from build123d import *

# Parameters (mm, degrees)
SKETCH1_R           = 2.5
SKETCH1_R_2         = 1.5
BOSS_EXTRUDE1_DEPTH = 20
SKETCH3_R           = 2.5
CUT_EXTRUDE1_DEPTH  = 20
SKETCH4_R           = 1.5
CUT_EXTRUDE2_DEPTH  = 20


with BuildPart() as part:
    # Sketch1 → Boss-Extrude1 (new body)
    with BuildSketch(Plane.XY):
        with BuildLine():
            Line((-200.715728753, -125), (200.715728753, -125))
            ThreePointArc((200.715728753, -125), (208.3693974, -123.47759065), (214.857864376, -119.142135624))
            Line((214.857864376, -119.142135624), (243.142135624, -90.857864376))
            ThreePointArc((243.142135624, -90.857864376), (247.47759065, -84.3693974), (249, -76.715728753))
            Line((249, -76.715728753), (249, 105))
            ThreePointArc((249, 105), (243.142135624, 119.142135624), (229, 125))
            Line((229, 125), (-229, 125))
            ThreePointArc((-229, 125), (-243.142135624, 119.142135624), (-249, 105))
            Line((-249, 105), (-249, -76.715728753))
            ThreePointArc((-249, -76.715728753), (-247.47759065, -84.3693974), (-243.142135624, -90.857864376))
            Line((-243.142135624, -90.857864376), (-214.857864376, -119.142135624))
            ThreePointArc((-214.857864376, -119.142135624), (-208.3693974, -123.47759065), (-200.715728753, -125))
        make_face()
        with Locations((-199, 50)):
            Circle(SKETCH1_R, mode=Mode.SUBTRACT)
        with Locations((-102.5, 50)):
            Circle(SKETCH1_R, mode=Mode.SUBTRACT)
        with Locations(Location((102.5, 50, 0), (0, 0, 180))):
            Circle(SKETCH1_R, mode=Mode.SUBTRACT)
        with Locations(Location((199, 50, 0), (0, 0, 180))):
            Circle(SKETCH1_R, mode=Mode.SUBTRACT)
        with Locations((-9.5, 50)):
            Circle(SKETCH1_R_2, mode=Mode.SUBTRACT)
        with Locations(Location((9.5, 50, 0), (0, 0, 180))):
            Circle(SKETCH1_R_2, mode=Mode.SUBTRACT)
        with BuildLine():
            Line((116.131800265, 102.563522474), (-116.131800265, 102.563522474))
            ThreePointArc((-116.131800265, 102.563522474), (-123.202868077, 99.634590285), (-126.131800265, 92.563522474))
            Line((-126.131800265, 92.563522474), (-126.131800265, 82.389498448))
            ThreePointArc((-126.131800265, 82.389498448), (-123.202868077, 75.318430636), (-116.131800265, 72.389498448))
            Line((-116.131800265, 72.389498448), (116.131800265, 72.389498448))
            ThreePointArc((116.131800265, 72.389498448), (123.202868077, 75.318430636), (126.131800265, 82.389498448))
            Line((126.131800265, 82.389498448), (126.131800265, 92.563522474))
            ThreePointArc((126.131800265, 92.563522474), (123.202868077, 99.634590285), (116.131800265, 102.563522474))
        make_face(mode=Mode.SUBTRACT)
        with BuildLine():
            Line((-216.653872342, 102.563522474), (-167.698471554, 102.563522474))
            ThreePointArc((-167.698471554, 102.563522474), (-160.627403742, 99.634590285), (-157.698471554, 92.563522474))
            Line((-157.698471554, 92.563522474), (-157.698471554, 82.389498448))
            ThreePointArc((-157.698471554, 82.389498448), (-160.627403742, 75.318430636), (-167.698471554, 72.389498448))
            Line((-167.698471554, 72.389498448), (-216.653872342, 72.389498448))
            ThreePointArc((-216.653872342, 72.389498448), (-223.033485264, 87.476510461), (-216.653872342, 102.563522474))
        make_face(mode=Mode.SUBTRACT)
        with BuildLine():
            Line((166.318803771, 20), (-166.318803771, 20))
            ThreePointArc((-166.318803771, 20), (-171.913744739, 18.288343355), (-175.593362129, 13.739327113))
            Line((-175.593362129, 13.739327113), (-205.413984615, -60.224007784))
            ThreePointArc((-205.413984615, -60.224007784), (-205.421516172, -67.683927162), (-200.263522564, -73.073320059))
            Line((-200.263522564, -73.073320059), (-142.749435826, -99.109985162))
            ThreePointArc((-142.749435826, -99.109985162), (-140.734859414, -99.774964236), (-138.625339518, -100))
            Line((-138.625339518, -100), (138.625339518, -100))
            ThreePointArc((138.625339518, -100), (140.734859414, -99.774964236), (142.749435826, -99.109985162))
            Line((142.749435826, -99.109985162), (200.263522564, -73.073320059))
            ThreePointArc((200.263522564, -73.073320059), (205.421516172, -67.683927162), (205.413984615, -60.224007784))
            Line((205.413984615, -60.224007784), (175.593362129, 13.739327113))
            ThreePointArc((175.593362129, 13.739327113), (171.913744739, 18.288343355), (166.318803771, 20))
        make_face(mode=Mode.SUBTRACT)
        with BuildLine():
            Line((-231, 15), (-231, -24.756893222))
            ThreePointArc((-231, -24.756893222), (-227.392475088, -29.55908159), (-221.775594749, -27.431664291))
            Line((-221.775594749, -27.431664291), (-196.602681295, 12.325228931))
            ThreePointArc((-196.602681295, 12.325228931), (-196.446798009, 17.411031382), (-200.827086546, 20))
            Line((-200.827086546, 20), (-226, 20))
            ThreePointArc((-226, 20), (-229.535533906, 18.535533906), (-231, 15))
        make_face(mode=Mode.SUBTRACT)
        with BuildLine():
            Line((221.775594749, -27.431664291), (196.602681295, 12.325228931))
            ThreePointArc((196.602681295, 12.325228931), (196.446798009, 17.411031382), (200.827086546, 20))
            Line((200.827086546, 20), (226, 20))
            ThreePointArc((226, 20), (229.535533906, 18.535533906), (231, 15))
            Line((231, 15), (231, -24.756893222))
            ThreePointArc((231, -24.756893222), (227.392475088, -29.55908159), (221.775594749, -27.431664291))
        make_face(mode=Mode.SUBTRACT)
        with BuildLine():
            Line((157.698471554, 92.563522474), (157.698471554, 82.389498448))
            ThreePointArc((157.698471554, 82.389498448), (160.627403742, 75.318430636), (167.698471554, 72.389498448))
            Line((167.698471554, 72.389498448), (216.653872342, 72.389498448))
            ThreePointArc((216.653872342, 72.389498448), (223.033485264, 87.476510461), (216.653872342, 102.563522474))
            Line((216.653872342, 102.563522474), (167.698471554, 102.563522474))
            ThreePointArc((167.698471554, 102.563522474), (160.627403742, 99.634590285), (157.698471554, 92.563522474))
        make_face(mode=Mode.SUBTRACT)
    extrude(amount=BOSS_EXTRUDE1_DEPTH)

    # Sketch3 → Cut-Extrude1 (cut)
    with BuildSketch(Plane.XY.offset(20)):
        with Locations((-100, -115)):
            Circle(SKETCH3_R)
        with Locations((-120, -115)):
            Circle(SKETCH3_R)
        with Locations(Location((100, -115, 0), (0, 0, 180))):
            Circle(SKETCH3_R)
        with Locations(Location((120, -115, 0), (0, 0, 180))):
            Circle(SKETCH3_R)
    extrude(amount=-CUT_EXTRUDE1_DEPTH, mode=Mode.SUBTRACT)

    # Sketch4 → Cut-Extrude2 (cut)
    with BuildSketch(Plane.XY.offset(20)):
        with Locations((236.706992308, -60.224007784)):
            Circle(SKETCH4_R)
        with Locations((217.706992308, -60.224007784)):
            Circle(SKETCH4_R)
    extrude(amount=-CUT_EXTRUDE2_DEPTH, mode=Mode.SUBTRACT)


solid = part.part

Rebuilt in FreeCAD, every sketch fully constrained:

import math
import FreeCAD as App
import Part
import Sketcher

doc = App.newDocument("Part")
body = doc.addObject("PartDesign::Body", "Body")

sketch1 = body.newObject("Sketcher::SketchObject", "Sketch")
sketch1.AttachmentSupport = (doc.getObject("XY_Plane"), [""])
sketch1.MapMode = "FlatFace"
sketch1.addGeometry([
    Part.LineSegment(App.Vector(-200.7, -125, 0), App.Vector(200.7, -125, 0)),
    Part.ArcOfCircle(Part.Circle(App.Vector(200.7, -105, 0), App.Vector(0, 0, 1), 20), math.radians(-90), math.radians(-45)),
    Part.LineSegment(App.Vector(214.9, -119.1, 0), App.Vector(243.1, -90.9, 0)),
    Part.ArcOfCircle(Part.Circle(App.Vector(229, -76.7, 0), App.Vector(0, 0, 1), 20), math.radians(-45), math.radians(0)),
    Part.LineSegment(App.Vector(249, -76.7, 0), App.Vector(249, 105, 0)),
    Part.ArcOfCircle(Part.Circle(App.Vector(229, 105, 0), App.Vector(0, 0, 1), 20), math.radians(0), math.radians(90)),
    Part.LineSegment(App.Vector(229, 125, 0), App.Vector(-229, 125, 0)),
    Part.ArcOfCircle(Part.Circle(App.Vector(-229, 105, 0), App.Vector(0, 0, 1), 20), math.radians(90), math.radians(180)),
    Part.LineSegment(App.Vector(-249, 105, 0), App.Vector(-249, -76.7, 0)),
    Part.ArcOfCircle(Part.Circle(App.Vector(-229, -76.7, 0), App.Vector(0, 0, 1), 20), math.radians(-180), math.radians(-135)),
    Part.LineSegment(App.Vector(-243.1, -90.9, 0), App.Vector(-214.9, -119.1, 0)),
    Part.ArcOfCircle(Part.Circle(App.Vector(-200.7, -105, 0), App.Vector(0, 0, 1), 20), math.radians(-135), math.radians(-90)),
    Part.LineSegment(App.Vector(-231, -24.8, 0), App.Vector(-231, 15, 0)),
    Part.ArcOfCircle(Part.Circle(App.Vector(-226, 15, 0), App.Vector(0, 0, 1), 5), math.radians(90), math.radians(180)),
    Part.LineSegment(App.Vector(-226, 20, 0), App.Vector(-200.8, 20, 0)),
    Part.ArcOfCircle(Part.Circle(App.Vector(-200.8, 15, 0), App.Vector(0, 0, 1), 5), math.radians(-32), math.radians(90)),
    Part.LineSegment(App.Vector(-196.6, 12.3, 0), App.Vector(-221.8, -27.4, 0)),
    Part.ArcOfCircle(Part.Circle(App.Vector(-226, -24.8, 0), App.Vector(0, 0, 1), 5), math.radians(-180), math.radians(-32)),
    Part.LineSegment(App.Vector(-166.3, 20, 0), App.Vector(166.3, 20, 0)),
    Part.ArcOfCircle(Part.Circle(App.Vector(166.3, 10, 0), App.Vector(0, 0, 1), 10), math.radians(22), math.radians(90)),
    Part.LineSegment(App.Vector(175.6, 13.7, 0), App.Vector(205.4, -60.2, 0)),
    Part.ArcOfCircle(Part.Circle(App.Vector(196.1, -64, 0), App.Vector(0, 0, 1), 10), math.radians(-66), math.radians(22)),
    Part.LineSegment(App.Vector(200.3, -73.1, 0), App.Vector(142.7, -99.1, 0)),
    Part.ArcOfCircle(Part.Circle(App.Vector(138.6, -90, 0), App.Vector(0, 0, 1), 10), math.radians(-90), math.radians(-66)),
    Part.LineSegment(App.Vector(138.6, -100, 0), App.Vector(-138.6, -100, 0)),
    Part.ArcOfCircle(Part.Circle(App.Vector(-138.6, -90, 0), App.Vector(0, 0, 1), 10), math.radians(-114), math.radians(-90)),
    Part.LineSegment(App.Vector(-142.7, -99.1, 0), App.Vector(-200.3, -73.1, 0)),
    Part.ArcOfCircle(Part.Circle(App.Vector(-196.1, -64, 0), App.Vector(0, 0, 1), 10), math.radians(158), math.radians(246)),
    Part.LineSegment(App.Vector(-205.4, -60.2, 0), App.Vector(-175.6, 13.7, 0)),
    Part.ArcOfCircle(Part.Circle(App.Vector(-166.3, 10, 0), App.Vector(0, 0, 1), 10), math.radians(90), math.radians(158)),
    Part.ArcOfCircle(Part.Circle(App.Vector(226, -24.8, 0), App.Vector(0, 0, 1), 5), math.radians(-148), math.radians(0)),
    Part.LineSegment(App.Vector(221.8, -27.4, 0), App.Vector(196.6, 12.3, 0)),
    Part.ArcOfCircle(Part.Circle(App.Vector(200.8, 15, 0), App.Vector(0, 0, 1), 5), math.radians(90), math.radians(212)),
    Part.LineSegment(App.Vector(200.8, 20, 0), App.Vector(226, 20, 0)),
    Part.ArcOfCircle(Part.Circle(App.Vector(226, 15, 0), App.Vector(0, 0, 1), 5), math.radians(0), math.radians(90)),
    Part.LineSegment(App.Vector(231, 15, 0), App.Vector(231, -24.8, 0)),
    Part.Circle(App.Vector(-199, 50, 0), App.Vector(0, 0, 1), 2.5),
    Part.Circle(App.Vector(-102.5, 50, 0), App.Vector(0, 0, 1), 2.5),
    Part.Circle(App.Vector(-9.5, 50, 0), App.Vector(0, 0, 1), 1.5),
    Part.ArcOfCircle(Part.Circle(App.Vector(-202, 87.5, 0), App.Vector(0, 0, 1), 21), math.radians(134), math.radians(226)),
    Part.LineSegment(App.Vector(-216.7, 102.6, 0), App.Vector(-167.7, 102.6, 0)),
    Part.ArcOfCircle(Part.Circle(App.Vector(-167.7, 92.6, 0), App.Vector(0, 0, 1), 10), math.radians(0), math.radians(90)),
    Part.LineSegment(App.Vector(-157.7, 92.6, 0), App.Vector(-157.7, 82.4, 0)),
    Part.ArcOfCircle(Part.Circle(App.Vector(-167.7, 82.4, 0), App.Vector(0, 0, 1), 10), math.radians(-90), math.radians(0)),
    Part.LineSegment(App.Vector(-167.7, 72.4, 0), App.Vector(-216.7, 72.4, 0)),
    Part.Circle(App.Vector(9.5, 50, 0), App.Vector(0, 0, 1), 1.5),
    Part.Circle(App.Vector(102.5, 50, 0), App.Vector(0, 0, 1), 2.5),
    Part.Circle(App.Vector(199, 50, 0), App.Vector(0, 0, 1), 2.5),
    Part.LineSegment(App.Vector(-116.1, 102.6, 0), App.Vector(116.1, 102.6, 0)),
    Part.ArcOfCircle(Part.Circle(App.Vector(116.1, 92.6, 0), App.Vector(0, 0, 1), 10), math.radians(0), math.radians(90)),
    Part.LineSegment(App.Vector(126.1, 92.6, 0), App.Vector(126.1, 82.4, 0)),
    Part.ArcOfCircle(Part.Circle(App.Vector(116.1, 82.4, 0), App.Vector(0, 0, 1), 10), math.radians(-90), math.radians(0)),
    Part.LineSegment(App.Vector(116.1, 72.4, 0), App.Vector(-116.1, 72.4, 0)),
    Part.ArcOfCircle(Part.Circle(App.Vector(-116.1, 82.4, 0), App.Vector(0, 0, 1), 10), math.radians(180), math.radians(270)),
    Part.LineSegment(App.Vector(-126.1, 82.4, 0), App.Vector(-126.1, 92.6, 0)),
    Part.ArcOfCircle(Part.Circle(App.Vector(-116.1, 92.6, 0), App.Vector(0, 0, 1), 10), math.radians(90), math.radians(180)),
    Part.LineSegment(App.Vector(157.7, 82.4, 0), App.Vector(157.7, 92.6, 0)),
    Part.ArcOfCircle(Part.Circle(App.Vector(167.7, 92.6, 0), App.Vector(0, 0, 1), 10), math.radians(90), math.radians(180)),
    Part.LineSegment(App.Vector(167.7, 102.6, 0), App.Vector(216.7, 102.6, 0)),
    Part.ArcOfCircle(Part.Circle(App.Vector(202, 87.5, 0), App.Vector(0, 0, 1), 21), math.radians(-46), math.radians(46)),
    Part.LineSegment(App.Vector(216.7, 72.4, 0), App.Vector(167.7, 72.4, 0)),
    Part.ArcOfCircle(Part.Circle(App.Vector(167.7, 82.4, 0), App.Vector(0, 0, 1), 10), math.radians(180), math.radians(270)),
], False)
sketch1.addConstraint([
    Sketcher.Constraint("Tangent", 0, 2, 1, 1),
    Sketcher.Constraint("Tangent", 1, 2, 2, 1),
    Sketcher.Constraint("Tangent", 2, 2, 3, 1),
    Sketcher.Constraint("Tangent", 3, 2, 4, 1),
    Sketcher.Constraint("Tangent", 4, 2, 5, 1),
    Sketcher.Constraint("Tangent", 5, 2, 6, 1),
    Sketcher.Constraint("Tangent", 6, 2, 7, 1),
    Sketcher.Constraint("Tangent", 7, 2, 8, 1),
    Sketcher.Constraint("Tangent", 8, 2, 9, 1),
    Sketcher.Constraint("Tangent", 9, 2, 10, 1),
    Sketcher.Constraint("Tangent", 10, 2, 11, 1),
    Sketcher.Constraint("Tangent", 11, 2, 0, 1),
    Sketcher.Constraint("Tangent", 12, 2, 13, 2),
    Sketcher.Constraint("Tangent", 13, 1, 14, 1),
    Sketcher.Constraint("Tangent", 14, 2, 15, 2),
    Sketcher.Constraint("Tangent", 15, 1, 16, 1),
    Sketcher.Constraint("Tangent", 16, 2, 17, 2),
    Sketcher.Constraint("Tangent", 17, 1, 12, 1),
    Sketcher.Constraint("Tangent", 18, 2, 19, 2),
    Sketcher.Constraint("Tangent", 19, 1, 20, 1),
    Sketcher.Constraint("Tangent", 20, 2, 21, 2),
    Sketcher.Constraint("Tangent", 21, 1, 22, 1),
    Sketcher.Constraint("Tangent", 22, 2, 23, 2),
    Sketcher.Constraint("Tangent", 23, 1, 24, 1),
    Sketcher.Constraint("Tangent", 24, 2, 25, 2),
    Sketcher.Constraint("Tangent", 25, 1, 26, 1),
    Sketcher.Constraint("Tangent", 26, 2, 27, 2),
    Sketcher.Constraint("Tangent", 27, 1, 28, 1),
    Sketcher.Constraint("Tangent", 28, 2, 29, 2),
    Sketcher.Constraint("Tangent", 29, 1, 18, 1),
    Sketcher.Constraint("Tangent", 30, 1, 31, 1),
    Sketcher.Constraint("Tangent", 31, 2, 32, 2),
    Sketcher.Constraint("Tangent", 32, 1, 33, 1),
    Sketcher.Constraint("Tangent", 33, 2, 34, 2),
    Sketcher.Constraint("Tangent", 34, 1, 35, 1),
    Sketcher.Constraint("Tangent", 35, 2, 30, 2),
    Sketcher.Constraint("Coincident", 39, 1, 40, 1),
    Sketcher.Constraint("Tangent", 40, 2, 41, 2),
    Sketcher.Constraint("Tangent", 41, 1, 42, 1),
    Sketcher.Constraint("Tangent", 42, 2, 43, 2),
    Sketcher.Constraint("Tangent", 43, 1, 44, 1),
    Sketcher.Constraint("Coincident", 44, 2, 39, 2),
    Sketcher.Constraint("Tangent", 48, 2, 49, 2),
    Sketcher.Constraint("Tangent", 49, 1, 50, 1),
    Sketcher.Constraint("Tangent", 50, 2, 51, 2),
    Sketcher.Constraint("Tangent", 51, 1, 52, 1),
    Sketcher.Constraint("Tangent", 52, 2, 53, 2),
    Sketcher.Constraint("Tangent", 53, 1, 54, 1),
    Sketcher.Constraint("Tangent", 54, 2, 55, 2),
    Sketcher.Constraint("Tangent", 55, 1, 48, 1),
    Sketcher.Constraint("Tangent", 56, 2, 57, 2),
    Sketcher.Constraint("Tangent", 57, 1, 58, 1),
    Sketcher.Constraint("Coincident", 58, 2, 59, 2),
    Sketcher.Constraint("Coincident", 59, 1, 60, 1),
    Sketcher.Constraint("Tangent", 60, 2, 61, 2),
    Sketcher.Constraint("Tangent", 61, 1, 56, 1),
    Sketcher.Constraint("Horizontal", 0),
    Sketcher.Constraint("Vertical", 4),
    Sketcher.Constraint("Horizontal", 6),
    Sketcher.Constraint("Vertical", 8),
    Sketcher.Constraint("Vertical", 12),
    Sketcher.Constraint("Horizontal", 14),
    Sketcher.Constraint("Horizontal", 18),
    Sketcher.Constraint("Horizontal", 24),
    Sketcher.Constraint("Horizontal", 33),
    Sketcher.Constraint("Vertical", 35),
    Sketcher.Constraint("Horizontal", 40),
    Sketcher.Constraint("Vertical", 42),
    Sketcher.Constraint("Horizontal", 44),
    Sketcher.Constraint("Horizontal", 48),
    Sketcher.Constraint("Vertical", 50),
    Sketcher.Constraint("Horizontal", 52),
    Sketcher.Constraint("Vertical", 54),
    Sketcher.Constraint("Vertical", 56),
    Sketcher.Constraint("Horizontal", 58),
    Sketcher.Constraint("Horizontal", 60),
    Sketcher.Constraint("Equal", 1, 3),
    Sketcher.Constraint("Equal", 3, 5),
    Sketcher.Constraint("Equal", 5, 7),
    Sketcher.Constraint("Equal", 7, 9),
    Sketcher.Constraint("Equal", 9, 11),
    Sketcher.Constraint("Equal", 13, 15),
    Sketcher.Constraint("Equal", 15, 17),
    Sketcher.Constraint("Equal", 19, 21),
    Sketcher.Constraint("Equal", 21, 23),
    Sketcher.Constraint("Equal", 23, 25),
    Sketcher.Constraint("Equal", 25, 27),
    Sketcher.Constraint("Equal", 27, 29),
    Sketcher.Constraint("Equal", 17, 30),
    Sketcher.Constraint("Equal", 30, 32),
    Sketcher.Constraint("Equal", 32, 34),
    Sketcher.Constraint("Equal", 36, 37),
    Sketcher.Constraint("Equal", 29, 41),
    Sketcher.Constraint("Equal", 41, 43),
    Sketcher.Constraint("Equal", 38, 45),
    Sketcher.Constraint("Equal", 37, 46),
    Sketcher.Constraint("Equal", 46, 47),
    Sketcher.Constraint("Equal", 43, 49),
    Sketcher.Constraint("Equal", 49, 51),
    Sketcher.Constraint("Equal", 51, 53),
    Sketcher.Constraint("Equal", 53, 55),
    Sketcher.Constraint("Equal", 55, 57),
    Sketcher.Constraint("Equal", 39, 59),
    Sketcher.Constraint("Equal", 57, 61),
    Sketcher.Constraint("Symmetric", 3, 3, 9, 3, -2),
    Sketcher.Constraint("Symmetric", 21, 3, 27, 3, -2),
    Sketcher.Constraint("Symmetric", 17, 3, 30, 3, -2),
    Sketcher.Constraint("Symmetric", 15, 3, 32, 3, -2),
    Sketcher.Constraint("Symmetric", 38, 3, 45, 3, -2),
    Sketcher.Constraint("Symmetric", 37, 3, 46, 3, -2),
    Sketcher.Constraint("Symmetric", 36, 3, 47, 3, -2),
    Sketcher.Constraint("Symmetric", 41, 3, 57, 3, -2),
    Sketcher.Constraint("Symmetric", 39, 3, 59, 3, -2),
    Sketcher.Constraint("Perpendicular", 2, 10),
    Sketcher.Constraint("Horizontal", 36, 3, 37, 3),
    Sketcher.Constraint("Horizontal", 37, 3, 38, 3),
    Sketcher.Constraint("Horizontal", 41, 3, 49, 3),
    Sketcher.Constraint("Horizontal", 43, 3, 51, 3),
    Sketcher.Constraint("Horizontal", 53, 3, 61, 3),
    Sketcher.Constraint("Horizontal", 2, 2, 9, 2),
    Sketcher.Constraint("Horizontal", 14, 2, 18, 2),
    Sketcher.Constraint("Horizontal", 22, 2, 25, 1),
    Sketcher.Constraint("Horizontal", 20, 2, 27, 1),
    Sketcher.Constraint("Vertical", 39, 1, 44, 2),
    Sketcher.Constraint("Diameter", 36, 5.0),
    Sketcher.Constraint("Diameter", 38, 3.0),
    Sketcher.Constraint("Radius", 1, 20.0),
    Sketcher.Constraint("Radius", 13, 5.0),
    Sketcher.Constraint("Radius", 19, 10.0),
    Sketcher.Constraint("DistanceX", 6, 2, 6, 1, 458.0),
    Sketcher.Constraint("Distance", 2, 40.0),
    Sketcher.Constraint("DistanceY", 1, 3, -1, 1, 105.0),
    Sketcher.Constraint("DistanceY", -1, 1, 5, 3, 105.0),
    Sketcher.Constraint("DistanceX", 13, 3, -1, 1, 226.0),
    Sketcher.Constraint("DistanceY", -1, 1, 13, 3, 15.0),
    Sketcher.Constraint("DistanceY", 23, 3, -1, 1, 90.0),
    Sketcher.Constraint("DistanceX", 36, 3, -1, 1, 199.0),
    Sketcher.Constraint("DistanceY", -1, 1, 36, 3, 50.0),
    Sketcher.Constraint("DistanceX", 37, 3, -1, 1, 102.5),
    Sketcher.Constraint("DistanceX", 38, 3, -1, 1, 9.5),
    Sketcher.Constraint("DistanceX", 40, 1, 40, 2, 48.955401),
    Sketcher.Constraint("DistanceX", 48, 1, 48, 2, 232.263601),
    Sketcher.Constraint("Radius", 39, 21.029285),
    Sketcher.Constraint("Distance", 16, 47.056202),
    Sketcher.Constraint("DistanceX", 24, 2, 24, 1, 277.250679),
    Sketcher.Constraint("DistanceX", 39, 3, -1, 1, 202.004201),
    Sketcher.Constraint("DistanceY", -1, 1, 43, 3, 82.389498),
    Sketcher.Constraint("DistanceX", -1, 1, 49, 3, 116.1318),
    Sketcher.Constraint("Distance", 22, 63.133019),
    Sketcher.Constraint("DistanceX", 14, 1, 14, 2, 25.172913),
    Sketcher.Constraint("DistanceX", 18, 1, 18, 2, 332.637608),
    Sketcher.Constraint("DistanceY", 42, 2, 42, 1, 10.174024),
    Sketcher.Constraint("DistanceY", 21, 1, -1, 1, 73.07332),
])
pad1 = body.newObject("PartDesign::Pad", "Pad")
pad1.Profile = sketch1
pad1.Length = 20

sketch2 = body.newObject("Sketcher::SketchObject", "Sketch001")
sketch2.AttachmentSupport = (doc.getObject("XY_Plane"), [""])
sketch2.MapMode = "FlatFace"
sketch2.AttachmentOffset = App.Placement(App.Vector(0, 0, 20), App.Rotation())
sketch2.addGeometry([
    Part.Circle(App.Vector(-100, -115, 0), App.Vector(0, 0, 1), 2.5),
    Part.Circle(App.Vector(-120, -115, 0), App.Vector(0, 0, 1), 2.5),
    Part.Circle(App.Vector(100, -115, 0), App.Vector(0, 0, 1), 2.5),
    Part.Circle(App.Vector(120, -115, 0), App.Vector(0, 0, 1), 2.5),
], False)
sketch2.addConstraint([
    Sketcher.Constraint("Equal", 0, 1),
    Sketcher.Constraint("Equal", 1, 2),
    Sketcher.Constraint("Equal", 2, 3),
    Sketcher.Constraint("Symmetric", 0, 3, 2, 3, -2),
    Sketcher.Constraint("Symmetric", 1, 3, 3, 3, -2),
    Sketcher.Constraint("Horizontal", 0, 3, 1, 3),
    Sketcher.Constraint("Diameter", 0, 5.0),
    Sketcher.Constraint("DistanceX", 0, 3, -1, 1, 100.0),
    Sketcher.Constraint("DistanceY", 0, 3, -1, 1, 115.0),
    Sketcher.Constraint("DistanceX", 1, 3, -1, 1, 120.0),
])
pocket1 = body.newObject("PartDesign::Pocket", "Pocket")
pocket1.Profile = sketch2
pocket1.Length = 20

sketch3 = body.newObject("Sketcher::SketchObject", "Sketch002")
sketch3.AttachmentSupport = (doc.getObject("XY_Plane"), [""])
sketch3.MapMode = "FlatFace"
sketch3.AttachmentOffset = App.Placement(App.Vector(0, 0, 20), App.Rotation())
sketch3.addGeometry([
    Part.Circle(App.Vector(236.7, -60.2, 0), App.Vector(0, 0, 1), 1.5),
    Part.Circle(App.Vector(217.7, -60.2, 0), App.Vector(0, 0, 1), 1.5),
], False)
sketch3.addConstraint([
    Sketcher.Constraint("Equal", 0, 1),
    Sketcher.Constraint("Horizontal", 0, 3, 1, 3),
    Sketcher.Constraint("Diameter", 0, 3.0),
    Sketcher.Constraint("DistanceX", 1, 3, 0, 3, 19.0),
    Sketcher.Constraint("DistanceX", -1, 1, 0, 3, 236.706992),
    Sketcher.Constraint("DistanceY", 0, 3, -1, 1, 60.224008),
])
pocket2 = body.newObject("PartDesign::Pocket", "Pocket001")
pocket2.Profile = sketch3
pocket2.Length = 20

doc.recompute()
